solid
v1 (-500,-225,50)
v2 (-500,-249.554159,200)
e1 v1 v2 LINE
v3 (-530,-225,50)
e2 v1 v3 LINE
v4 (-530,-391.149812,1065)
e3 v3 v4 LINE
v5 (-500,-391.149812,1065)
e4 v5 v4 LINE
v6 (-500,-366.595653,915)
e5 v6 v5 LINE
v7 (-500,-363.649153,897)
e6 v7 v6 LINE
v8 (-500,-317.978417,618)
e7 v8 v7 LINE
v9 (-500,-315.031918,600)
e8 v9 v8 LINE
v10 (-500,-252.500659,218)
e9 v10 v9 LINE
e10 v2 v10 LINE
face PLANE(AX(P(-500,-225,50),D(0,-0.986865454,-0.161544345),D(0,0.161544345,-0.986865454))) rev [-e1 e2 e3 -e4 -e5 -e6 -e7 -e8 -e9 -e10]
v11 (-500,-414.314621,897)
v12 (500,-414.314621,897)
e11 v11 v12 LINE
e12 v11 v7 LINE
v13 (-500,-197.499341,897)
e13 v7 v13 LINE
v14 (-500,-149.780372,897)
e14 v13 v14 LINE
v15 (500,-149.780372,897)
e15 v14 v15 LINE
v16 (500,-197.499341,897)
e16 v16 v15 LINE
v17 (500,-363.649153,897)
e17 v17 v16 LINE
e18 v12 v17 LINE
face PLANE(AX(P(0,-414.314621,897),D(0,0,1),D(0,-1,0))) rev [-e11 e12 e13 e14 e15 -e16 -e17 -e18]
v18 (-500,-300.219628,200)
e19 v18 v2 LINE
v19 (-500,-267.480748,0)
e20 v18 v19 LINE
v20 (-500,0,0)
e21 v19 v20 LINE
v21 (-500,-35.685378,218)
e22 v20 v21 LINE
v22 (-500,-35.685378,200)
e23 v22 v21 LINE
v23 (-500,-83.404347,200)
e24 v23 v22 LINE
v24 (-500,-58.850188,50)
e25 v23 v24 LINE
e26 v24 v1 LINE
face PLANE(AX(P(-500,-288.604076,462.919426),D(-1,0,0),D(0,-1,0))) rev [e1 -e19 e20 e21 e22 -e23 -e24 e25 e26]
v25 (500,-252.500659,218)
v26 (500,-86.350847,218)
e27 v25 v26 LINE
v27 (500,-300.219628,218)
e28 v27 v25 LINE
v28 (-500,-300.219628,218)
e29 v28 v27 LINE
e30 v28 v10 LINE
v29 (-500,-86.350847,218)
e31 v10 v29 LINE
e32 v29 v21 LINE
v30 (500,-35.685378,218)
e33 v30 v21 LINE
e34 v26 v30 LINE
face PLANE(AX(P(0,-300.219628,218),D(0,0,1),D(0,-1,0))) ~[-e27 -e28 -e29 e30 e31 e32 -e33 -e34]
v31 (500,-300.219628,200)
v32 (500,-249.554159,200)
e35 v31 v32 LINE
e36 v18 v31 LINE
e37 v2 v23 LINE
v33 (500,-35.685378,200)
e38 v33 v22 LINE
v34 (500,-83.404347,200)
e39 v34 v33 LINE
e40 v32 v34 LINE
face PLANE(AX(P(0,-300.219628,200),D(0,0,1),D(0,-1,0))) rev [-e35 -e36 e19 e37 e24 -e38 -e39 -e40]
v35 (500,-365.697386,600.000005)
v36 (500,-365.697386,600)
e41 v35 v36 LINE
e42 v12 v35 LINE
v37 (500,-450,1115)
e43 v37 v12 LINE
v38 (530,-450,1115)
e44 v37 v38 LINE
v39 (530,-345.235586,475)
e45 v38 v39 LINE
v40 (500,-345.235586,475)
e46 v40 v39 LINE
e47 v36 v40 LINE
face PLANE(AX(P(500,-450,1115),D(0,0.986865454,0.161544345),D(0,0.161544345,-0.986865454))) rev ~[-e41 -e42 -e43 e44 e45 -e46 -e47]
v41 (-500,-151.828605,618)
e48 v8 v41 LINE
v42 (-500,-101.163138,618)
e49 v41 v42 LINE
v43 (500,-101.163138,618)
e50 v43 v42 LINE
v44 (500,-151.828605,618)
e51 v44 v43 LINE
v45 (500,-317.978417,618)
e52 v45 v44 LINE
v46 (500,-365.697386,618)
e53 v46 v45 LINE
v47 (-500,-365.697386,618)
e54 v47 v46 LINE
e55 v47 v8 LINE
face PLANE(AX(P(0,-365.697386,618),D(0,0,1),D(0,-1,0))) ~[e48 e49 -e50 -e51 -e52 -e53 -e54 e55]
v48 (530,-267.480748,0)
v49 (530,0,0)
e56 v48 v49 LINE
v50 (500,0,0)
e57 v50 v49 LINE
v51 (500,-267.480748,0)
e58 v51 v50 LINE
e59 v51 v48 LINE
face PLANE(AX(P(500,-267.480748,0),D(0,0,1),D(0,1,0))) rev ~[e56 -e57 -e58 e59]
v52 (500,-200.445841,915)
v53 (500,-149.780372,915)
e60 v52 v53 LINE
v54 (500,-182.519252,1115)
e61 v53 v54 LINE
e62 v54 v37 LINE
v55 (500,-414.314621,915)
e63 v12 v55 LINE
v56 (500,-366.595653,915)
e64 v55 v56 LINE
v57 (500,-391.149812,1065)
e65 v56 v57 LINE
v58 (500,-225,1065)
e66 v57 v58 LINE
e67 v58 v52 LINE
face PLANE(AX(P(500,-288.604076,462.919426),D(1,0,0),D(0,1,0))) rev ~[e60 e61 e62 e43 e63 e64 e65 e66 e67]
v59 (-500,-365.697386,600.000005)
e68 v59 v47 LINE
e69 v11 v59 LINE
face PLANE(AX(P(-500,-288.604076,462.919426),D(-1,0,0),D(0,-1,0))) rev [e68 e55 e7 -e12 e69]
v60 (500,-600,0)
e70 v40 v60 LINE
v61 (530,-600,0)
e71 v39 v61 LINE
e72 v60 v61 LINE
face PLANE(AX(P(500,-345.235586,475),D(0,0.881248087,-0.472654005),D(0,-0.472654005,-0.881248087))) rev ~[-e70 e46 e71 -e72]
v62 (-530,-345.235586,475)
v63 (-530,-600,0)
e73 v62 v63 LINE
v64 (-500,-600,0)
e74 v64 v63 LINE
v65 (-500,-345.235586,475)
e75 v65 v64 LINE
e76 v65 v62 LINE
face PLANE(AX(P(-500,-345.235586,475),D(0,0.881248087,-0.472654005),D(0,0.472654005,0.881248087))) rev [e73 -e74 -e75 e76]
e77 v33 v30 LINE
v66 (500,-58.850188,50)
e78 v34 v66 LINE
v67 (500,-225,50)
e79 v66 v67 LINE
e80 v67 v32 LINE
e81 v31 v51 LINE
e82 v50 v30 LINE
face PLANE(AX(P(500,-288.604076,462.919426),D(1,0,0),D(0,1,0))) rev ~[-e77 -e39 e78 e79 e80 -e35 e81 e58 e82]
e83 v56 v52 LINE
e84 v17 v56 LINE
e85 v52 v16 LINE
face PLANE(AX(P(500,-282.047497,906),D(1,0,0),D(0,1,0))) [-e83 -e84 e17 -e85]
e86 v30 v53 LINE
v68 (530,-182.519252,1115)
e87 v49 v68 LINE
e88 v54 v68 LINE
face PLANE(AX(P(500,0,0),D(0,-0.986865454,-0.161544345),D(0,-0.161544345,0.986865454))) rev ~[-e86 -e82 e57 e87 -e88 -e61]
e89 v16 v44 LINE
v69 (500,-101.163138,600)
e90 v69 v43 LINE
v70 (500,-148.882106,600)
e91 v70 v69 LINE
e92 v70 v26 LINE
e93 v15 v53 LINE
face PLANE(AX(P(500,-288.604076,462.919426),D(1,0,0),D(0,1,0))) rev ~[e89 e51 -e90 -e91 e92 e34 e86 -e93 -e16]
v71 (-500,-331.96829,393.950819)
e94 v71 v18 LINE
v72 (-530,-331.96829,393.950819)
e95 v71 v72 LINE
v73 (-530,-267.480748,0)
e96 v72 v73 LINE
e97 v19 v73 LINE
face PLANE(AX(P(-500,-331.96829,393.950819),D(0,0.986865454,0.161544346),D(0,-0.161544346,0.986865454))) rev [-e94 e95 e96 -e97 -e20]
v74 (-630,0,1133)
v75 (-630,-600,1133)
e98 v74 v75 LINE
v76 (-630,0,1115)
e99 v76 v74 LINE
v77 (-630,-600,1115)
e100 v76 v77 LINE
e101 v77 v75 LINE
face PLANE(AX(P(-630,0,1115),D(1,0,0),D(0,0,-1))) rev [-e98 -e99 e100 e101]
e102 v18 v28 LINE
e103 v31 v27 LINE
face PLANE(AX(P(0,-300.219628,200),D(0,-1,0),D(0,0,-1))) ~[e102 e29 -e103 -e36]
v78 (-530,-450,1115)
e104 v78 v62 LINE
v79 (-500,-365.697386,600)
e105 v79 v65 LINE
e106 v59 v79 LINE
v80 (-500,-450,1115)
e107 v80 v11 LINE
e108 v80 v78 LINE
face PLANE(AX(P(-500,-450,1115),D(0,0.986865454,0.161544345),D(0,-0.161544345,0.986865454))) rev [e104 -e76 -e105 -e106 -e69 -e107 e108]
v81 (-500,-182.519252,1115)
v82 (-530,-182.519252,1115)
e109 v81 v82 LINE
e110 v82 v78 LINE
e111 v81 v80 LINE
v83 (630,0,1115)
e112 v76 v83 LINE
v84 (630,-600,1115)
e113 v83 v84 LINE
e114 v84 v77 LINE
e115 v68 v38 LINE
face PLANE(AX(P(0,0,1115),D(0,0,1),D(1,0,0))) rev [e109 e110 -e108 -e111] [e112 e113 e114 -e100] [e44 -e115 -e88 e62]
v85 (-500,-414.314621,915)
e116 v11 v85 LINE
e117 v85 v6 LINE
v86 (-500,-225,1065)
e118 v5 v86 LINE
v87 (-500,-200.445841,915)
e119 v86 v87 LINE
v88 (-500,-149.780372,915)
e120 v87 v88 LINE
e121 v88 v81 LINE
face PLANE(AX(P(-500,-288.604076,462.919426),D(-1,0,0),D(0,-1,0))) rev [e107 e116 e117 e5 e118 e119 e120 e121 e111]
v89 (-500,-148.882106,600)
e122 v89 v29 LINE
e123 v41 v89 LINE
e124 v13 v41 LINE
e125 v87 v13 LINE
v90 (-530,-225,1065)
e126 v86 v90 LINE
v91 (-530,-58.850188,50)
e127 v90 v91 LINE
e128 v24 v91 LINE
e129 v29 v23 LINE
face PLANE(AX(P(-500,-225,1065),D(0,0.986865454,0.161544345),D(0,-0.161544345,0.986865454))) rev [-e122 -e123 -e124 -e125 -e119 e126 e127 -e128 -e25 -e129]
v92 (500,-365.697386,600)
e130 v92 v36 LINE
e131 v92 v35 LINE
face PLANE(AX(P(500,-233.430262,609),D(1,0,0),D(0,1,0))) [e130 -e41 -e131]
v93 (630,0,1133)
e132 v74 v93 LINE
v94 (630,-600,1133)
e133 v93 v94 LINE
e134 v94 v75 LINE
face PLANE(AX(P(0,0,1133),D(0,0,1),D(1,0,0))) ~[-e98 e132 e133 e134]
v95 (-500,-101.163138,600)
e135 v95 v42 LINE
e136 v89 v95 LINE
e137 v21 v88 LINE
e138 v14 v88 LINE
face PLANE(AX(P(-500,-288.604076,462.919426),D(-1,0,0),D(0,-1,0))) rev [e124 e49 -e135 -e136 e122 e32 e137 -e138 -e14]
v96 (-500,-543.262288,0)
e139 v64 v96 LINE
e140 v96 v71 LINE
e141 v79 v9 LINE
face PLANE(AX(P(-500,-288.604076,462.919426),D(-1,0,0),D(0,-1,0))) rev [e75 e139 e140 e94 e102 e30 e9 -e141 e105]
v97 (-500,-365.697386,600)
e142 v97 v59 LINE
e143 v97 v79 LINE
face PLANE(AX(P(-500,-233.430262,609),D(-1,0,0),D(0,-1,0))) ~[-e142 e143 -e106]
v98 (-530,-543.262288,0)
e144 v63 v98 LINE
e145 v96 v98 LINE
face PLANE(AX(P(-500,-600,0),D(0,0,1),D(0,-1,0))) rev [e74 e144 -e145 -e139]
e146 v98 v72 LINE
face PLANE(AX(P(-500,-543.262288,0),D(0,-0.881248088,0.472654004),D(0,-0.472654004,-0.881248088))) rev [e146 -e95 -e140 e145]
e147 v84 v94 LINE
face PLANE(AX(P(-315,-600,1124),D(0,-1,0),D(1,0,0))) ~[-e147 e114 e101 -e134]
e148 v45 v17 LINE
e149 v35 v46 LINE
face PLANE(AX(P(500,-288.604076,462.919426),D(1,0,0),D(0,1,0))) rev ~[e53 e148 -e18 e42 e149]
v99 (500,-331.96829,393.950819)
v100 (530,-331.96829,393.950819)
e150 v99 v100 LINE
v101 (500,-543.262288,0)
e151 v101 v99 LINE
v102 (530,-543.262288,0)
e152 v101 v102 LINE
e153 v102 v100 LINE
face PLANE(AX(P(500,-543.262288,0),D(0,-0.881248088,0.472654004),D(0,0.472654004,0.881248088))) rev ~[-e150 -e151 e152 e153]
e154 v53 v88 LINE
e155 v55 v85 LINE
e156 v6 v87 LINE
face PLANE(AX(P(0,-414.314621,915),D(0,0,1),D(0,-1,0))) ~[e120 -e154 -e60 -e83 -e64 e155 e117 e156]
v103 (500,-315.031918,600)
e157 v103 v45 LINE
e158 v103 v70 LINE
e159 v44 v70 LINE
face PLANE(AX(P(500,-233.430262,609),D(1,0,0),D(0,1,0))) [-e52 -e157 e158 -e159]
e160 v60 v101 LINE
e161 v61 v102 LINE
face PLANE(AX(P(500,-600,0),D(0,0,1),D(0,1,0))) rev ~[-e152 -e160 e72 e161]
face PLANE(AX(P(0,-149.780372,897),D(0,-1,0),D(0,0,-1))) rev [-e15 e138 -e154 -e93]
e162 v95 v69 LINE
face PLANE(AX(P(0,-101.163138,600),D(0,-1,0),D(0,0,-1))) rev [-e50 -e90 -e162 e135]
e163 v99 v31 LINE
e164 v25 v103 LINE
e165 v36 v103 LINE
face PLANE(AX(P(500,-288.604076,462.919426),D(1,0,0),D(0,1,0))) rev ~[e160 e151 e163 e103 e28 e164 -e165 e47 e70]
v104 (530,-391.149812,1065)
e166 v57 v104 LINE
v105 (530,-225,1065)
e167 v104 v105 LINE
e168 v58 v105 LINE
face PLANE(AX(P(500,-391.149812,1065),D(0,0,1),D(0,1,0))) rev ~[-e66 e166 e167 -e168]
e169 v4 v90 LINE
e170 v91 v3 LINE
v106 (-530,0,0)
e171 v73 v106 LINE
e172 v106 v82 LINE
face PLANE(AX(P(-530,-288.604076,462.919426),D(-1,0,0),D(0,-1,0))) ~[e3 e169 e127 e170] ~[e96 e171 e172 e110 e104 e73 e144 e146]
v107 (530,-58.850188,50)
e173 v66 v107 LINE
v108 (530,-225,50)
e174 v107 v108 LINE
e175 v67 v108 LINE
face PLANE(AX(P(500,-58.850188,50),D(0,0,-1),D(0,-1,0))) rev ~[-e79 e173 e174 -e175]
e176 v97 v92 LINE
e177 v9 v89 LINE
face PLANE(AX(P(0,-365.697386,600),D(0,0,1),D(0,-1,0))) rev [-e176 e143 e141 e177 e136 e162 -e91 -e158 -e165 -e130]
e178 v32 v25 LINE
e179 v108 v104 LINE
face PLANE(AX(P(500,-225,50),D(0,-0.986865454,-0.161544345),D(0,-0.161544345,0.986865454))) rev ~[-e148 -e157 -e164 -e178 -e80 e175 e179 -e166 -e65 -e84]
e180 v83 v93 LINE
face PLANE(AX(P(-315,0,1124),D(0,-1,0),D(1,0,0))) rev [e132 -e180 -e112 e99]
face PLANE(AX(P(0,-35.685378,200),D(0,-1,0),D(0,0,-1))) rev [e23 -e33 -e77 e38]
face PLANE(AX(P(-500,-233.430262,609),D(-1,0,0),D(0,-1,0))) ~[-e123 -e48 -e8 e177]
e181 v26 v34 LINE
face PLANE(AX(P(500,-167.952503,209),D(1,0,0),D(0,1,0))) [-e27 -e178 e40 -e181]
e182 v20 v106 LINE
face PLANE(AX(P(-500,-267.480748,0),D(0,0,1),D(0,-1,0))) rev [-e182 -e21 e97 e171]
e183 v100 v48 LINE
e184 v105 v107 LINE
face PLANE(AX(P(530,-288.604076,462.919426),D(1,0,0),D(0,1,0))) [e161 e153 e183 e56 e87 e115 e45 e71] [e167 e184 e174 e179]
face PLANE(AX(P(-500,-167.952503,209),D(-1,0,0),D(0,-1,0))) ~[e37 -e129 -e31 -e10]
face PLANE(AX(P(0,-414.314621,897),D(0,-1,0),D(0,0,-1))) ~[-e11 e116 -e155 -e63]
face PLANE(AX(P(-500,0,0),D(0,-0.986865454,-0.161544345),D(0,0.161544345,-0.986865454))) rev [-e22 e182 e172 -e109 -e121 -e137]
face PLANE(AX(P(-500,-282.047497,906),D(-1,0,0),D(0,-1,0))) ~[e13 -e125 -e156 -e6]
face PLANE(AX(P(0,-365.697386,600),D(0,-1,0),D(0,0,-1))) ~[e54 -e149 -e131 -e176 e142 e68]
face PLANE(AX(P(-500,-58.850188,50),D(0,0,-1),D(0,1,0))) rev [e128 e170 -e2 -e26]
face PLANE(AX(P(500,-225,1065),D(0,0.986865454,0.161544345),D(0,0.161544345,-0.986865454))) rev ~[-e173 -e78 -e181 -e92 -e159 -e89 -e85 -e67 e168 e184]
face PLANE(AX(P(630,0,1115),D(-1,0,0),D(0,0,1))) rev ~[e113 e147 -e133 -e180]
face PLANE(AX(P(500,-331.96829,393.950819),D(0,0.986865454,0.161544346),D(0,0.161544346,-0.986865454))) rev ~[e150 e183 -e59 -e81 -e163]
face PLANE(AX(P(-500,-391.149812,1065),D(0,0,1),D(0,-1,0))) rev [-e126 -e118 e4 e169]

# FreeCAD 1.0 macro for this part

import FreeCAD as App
import Part
import Sketcher

V = App.Vector
Q = App.Units.Quantity

doc = App.newDocument("Part")
params = doc.addObject("Spreadsheet::Sheet", "Params")
for row, (alias, value) in enumerate([
    ("pad1_length", "30 mm"),
    ("sketch2_width", "630 mm"),
    ("sketch2_height", "18 mm"),
    ("pad2_length", "600 mm"),
    ("sketch3_height", "18 mm"),
    ("pad3_length", "500 mm"),
], start=1):
    params.set(f"A{row}", alias)
    params.set(f"B{row}", "=" + value)
    params.setAlias(f"B{row}", alias)

body = doc.addObject("PartDesign::Body", "Body")

# Sketch on YZ plane
sketch1 = body.newObject("Sketcher::SketchObject", "Sketch")
sketch1.AttachmentSupport = (doc.getObject("YZ_Plane"), [""])
sketch1.MapMode = "FlatFace"
sketch1.AttachmentOffset = App.Placement(V(0, 0, 500), App.Rotation())
sketch1.addGeometry(Part.LineSegment(V(-543.262288, 0, 0), V(-331.96829, 393.950819, 0)), False)
sketch1.addGeometry(Part.LineSegment(V(-331.96829, 393.950819, 0), V(-267.480748, 0, 0)), False)
sketch1.addGeometry(Part.LineSegment(V(-267.480748, 0, 0), V(0, 0, 0)), False)
sketch1.addGeometry(Part.LineSegment(V(0, 0, 0), V(-182.519252, 1115, 0)), False)
sketch1.addGeometry(Part.LineSegment(V(-182.519252, 1115, 0), V(-450, 1115, 0)), False)
sketch1.addGeometry(Part.LineSegment(V(-450, 1115, 0), V(-345.235586, 475, 0)), False)
sketch1.addGeometry(Part.LineSegment(V(-345.235586, 475, 0), V(-600, 0, 0)), False)
sketch1.addGeometry(Part.LineSegment(V(-600, 0, 0), V(-543.262288, 0, 0)), False)
sketch1.addGeometry(Part.LineSegment(V(-58.850188, 50, 0), V(-225, 50, 0)), False)
sketch1.addGeometry(Part.LineSegment(V(-225, 50, 0), V(-391.149812, 1065, 0)), False)
sketch1.addGeometry(Part.LineSegment(V(-391.149812, 1065, 0), V(-225, 1065, 0)), False)
sketch1.addGeometry(Part.LineSegment(V(-225, 1065, 0), V(-58.850188, 50, 0)), False)
sketch1.addConstraint(Sketcher.Constraint("Coincident", 0, 2, 1, 1))
sketch1.addConstraint(Sketcher.Constraint("Coincident", 1, 2, 2, 1))
sketch1.addConstraint(Sketcher.Constraint("Coincident", 2, 2, 3, 1))
sketch1.addConstraint(Sketcher.Constraint("Coincident", 3, 2, 4, 1))
sketch1.addConstraint(Sketcher.Constraint("Coincident", 4, 2, 5, 1))
sketch1.addConstraint(Sketcher.Constraint("Coincident", 5, 2, 6, 1))
sketch1.addConstraint(Sketcher.Constraint("Coincident", 6, 2, 7, 1))
sketch1.addConstraint(Sketcher.Constraint("Coincident", 7, 2, 0, 1))
sketch1.addConstraint(Sketcher.Constraint("Coincident", 8, 2, 9, 1))
sketch1.addConstraint(Sketcher.Constraint("Coincident", 9, 2, 10, 1))
sketch1.addConstraint(Sketcher.Constraint("Coincident", 10, 2, 11, 1))
sketch1.addConstraint(Sketcher.Constraint("Coincident", 11, 2, 8, 1))
sketch1.addConstraint(Sketcher.Constraint("Horizontal", 2))
sketch1.addConstraint(Sketcher.Constraint("Horizontal", 4))
sketch1.addConstraint(Sketcher.Constraint("Horizontal", 7))
sketch1.addConstraint(Sketcher.Constraint("Horizontal", 8))
sketch1.addConstraint(Sketcher.Constraint("Horizontal", 10))
sketch1.addConstraint(Sketcher.Constraint("Coincident", 2, 2, -1, 1))
sketch1.addConstraint(Sketcher.Constraint("PointOnObject", 6, 2, -1))
sketch1.addConstraint(Sketcher.Constraint("Parallel", 1, 3))
sketch1.addConstraint(Sketcher.Constraint("Parallel", 3, 5))
sketch1.addConstraint(Sketcher.Constraint("Parallel", 0, 6))
sketch1.addConstraint(Sketcher.Constraint("Parallel", 5, 9))
sketch1.addConstraint(Sketcher.Constraint("Parallel", 9, 11))
sketch1.addConstraint(Sketcher.Constraint("Vertical", 8, 2, 10, 2))
sketch1.addConstraint(Sketcher.Constraint("Equal", 2, 4))
sketch1.addConstraint(Sketcher.Constraint("DistanceY", -1, 1, 3, 2, Q("1115 mm")))
sketch1.addConstraint(Sketcher.Constraint("DistanceX", 4, 2, -1, 1, Q("450 mm")))
sketch1.addConstraint(Sketcher.Constraint("DistanceY", -1, 1, 5, 2, Q("475 mm")))
sketch1.addConstraint(Sketcher.Constraint("DistanceX", 6, 2, -1, 1, Q("600 mm")))
sketch1.addConstraint(Sketcher.Constraint("DistanceX", 8, 2, -1, 1, Q("225 mm")))
sketch1.addConstraint(Sketcher.Constraint("DistanceY", -1, 1, 8, 2, Q("50 mm")))
sketch1.addConstraint(Sketcher.Constraint("DistanceY", -1, 1, 9, 2, Q("1065 mm")))
sketch1.addConstraint(Sketcher.Constraint("Distance", 9, Q("1028.508999 mm")))
sketch1.addConstraint(Sketcher.Constraint("DistanceX", 7, 1, 7, 2, Q("56.737712 mm")))
pad1 = body.newObject("PartDesign::Pad", "Pad")
pad1.Profile = sketch1
pad1.setExpression("Length", "Params.pad1_length")

# Sketch on XZ plane
sketch2 = body.newObject("Sketcher::SketchObject", "Sketch001")
sketch2.AttachmentSupport = (doc.getObject("XZ_Plane"), [""])
sketch2.MapMode = "FlatFace"
sketch2.addGeometry(Part.LineSegment(V(0, 1133, 0), V(0, 1115, 0)), False)
sketch2.addGeometry(Part.LineSegment(V(0, 1115, 0), V(630, 1115, 0)), False)
sketch2.addGeometry(Part.LineSegment(V(630, 1115, 0), V(630, 1133, 0)), False)
sketch2.addGeometry(Part.LineSegment(V(630, 1133, 0), V(0, 1133, 0)), False)
sketch2.addConstraint(Sketcher.Constraint("Coincident", 0, 2, 1, 1))
sketch2.addConstraint(Sketcher.Constraint("Coincident", 1, 2, 2, 1))
sketch2.addConstraint(Sketcher.Constraint("Coincident", 2, 2, 3, 1))
sketch2.addConstraint(Sketcher.Constraint("Coincident", 3, 2, 0, 1))
sketch2.addConstraint(Sketcher.Constraint("Vertical", 0))
sketch2.addConstraint(Sketcher.Constraint("Horizontal", 1))
sketch2.addConstraint(Sketcher.Constraint("Vertical", 2))
sketch2.addConstraint(Sketcher.Constraint("Horizontal", 3))
sketch2.addConstraint(Sketcher.Constraint("PointOnObject", 0, 2, -2))
sketch2.addConstraint(Sketcher.Constraint("DistanceX", 1, 1, 1, 2, Q("630 mm")))
sketch2.addConstraint(Sketcher.Constraint("DistanceY", 0, 2, 0, 1, Q("18 mm")))
sketch2.addConstraint(Sketcher.Constraint("DistanceY", -1, 1, 0, 2, Q("1115 mm")))
sketch2.setExpression("Constraints[9]", "Params.sketch2_width")
sketch2.setExpression("Constraints[10]", "Params.sketch2_height")
pad2 = body.newObject("PartDesign::Pad", "Pad001")
pad2.Profile = sketch2
pad2.setExpression("Length", "Params.pad2_length")

# Sketch on YZ plane
sketch3 = body.newObject("Sketcher::SketchObject", "Sketch002")
sketch3.AttachmentSupport = (doc.getObject("YZ_Plane"), [""])
sketch3.MapMode = "FlatFace"
sketch3.addGeometry(Part.LineSegment(V(-414.314621, 915, 0), V(-414.314621, 897, 0)), False)
sketch3.addGeometry(Part.LineSegment(V(-414.314621, 897, 0), V(-149.780372, 897, 0)), False)
sketch3.addGeometry(Part.LineSegment(V(-149.780372, 897, 0), V(-149.780372, 915, 0)), False)
sketch3.addGeometry(Part.LineSegment(V(-149.780372, 915, 0), V(-414.314621, 915, 0)), False)
sketch3.addGeometry(Part.LineSegment(V(-365.697386, 618, 0), V(-365.697386, 600, 0)), False)
sketch3.addGeometry(Part.LineSegment(V(-365.697386, 600, 0), V(-101.163138, 600, 0)), False)
sketch3.addGeometry(Part.LineSegment(V(-101.163138, 600, 0), V(-101.163138, 618, 0)), False)
sketch3.addGeometry(Part.LineSegment(V(-101.163138, 618, 0), V(-365.697386, 618, 0)), False)
sketch3.addGeometry(Part.LineSegment(V(-300.219628, 218, 0), V(-300.219628, 200, 0)), False)
sketch3.addGeometry(Part.LineSegment(V(-300.219628, 200, 0), V(-35.685378, 200, 0)), False)
sketch3.addGeometry(Part.LineSegment(V(-35.685378, 200, 0), V(-35.685378, 218, 0)), False)
sketch3.addGeometry(Part.LineSegment(V(-35.685378, 218, 0), V(-300.219628, 218, 0)), False)
sketch3.addConstraint(Sketcher.Constraint("Coincident", 0, 2, 1, 1))
sketch3.addConstraint(Sketcher.Constraint("Coincident", 1, 2, 2, 1))
sketch3.addConstraint(Sketcher.Constraint("Coincident", 2, 2, 3, 1))
sketch3.addConstraint(Sketcher.Constraint("Coincident", 3, 2, 0, 1))
sketch3.addConstraint(Sketcher.Constraint("Coincident", 4, 2, 5, 1))
sketch3.addConstraint(Sketcher.Constraint("Coincident", 5, 2, 6, 1))
sketch3.addConstraint(Sketcher.Constraint("Coincident", 6, 2, 7, 1))
sketch3.addConstraint(Sketcher.Constraint("Coincident", 7, 2, 4, 1))
sketch3.addConstraint(Sketcher.Constraint("Coincident", 8, 2, 9, 1))
sketch3.addConstraint(Sketcher.Constraint("Coincident", 9, 2, 10, 1))
sketch3.addConstraint(Sketcher.Constraint("Coincident", 10, 2, 11, 1))
sketch3.addConstraint(Sketcher.Constraint("Coincident", 11, 2, 8, 1))
sketch3.addConstraint(Sketcher.Constraint("Vertical", 0))
sketch3.addConstraint(Sketcher.Constraint("Horizontal", 1))
sketch3.addConstraint(Sketcher.Constraint("Vertical", 2))
sketch3.addConstraint(Sketcher.Constraint("Horizontal", 3))
sketch3.addConstraint(Sketcher.Constraint("Vertical", 4))
sketch3.addConstraint(Sketcher.Constraint("Horizontal", 5))
sketch3.addConstraint(Sketcher.Constraint("Vertical", 6))
sketch3.addConstraint(Sketcher.Constraint("Horizontal", 7))
sketch3.addConstraint(Sketcher.Constraint("Vertical", 8))
sketch3.addConstraint(Sketcher.Constraint("Horizontal", 9))
sketch3.addConstraint(Sketcher.Constraint("Vertical", 10))
sketch3.addConstraint(Sketcher.Constraint("Horizontal", 11))
sketch3.addConstraint(Sketcher.Constraint("Equal", 3, 5))
sketch3.addConstraint(Sketcher.Constraint("Equal", 7, 9))
sketch3.addConstraint(Sketcher.Constraint("Equal", 2, 4))
sketch3.addConstraint(Sketcher.Constraint("Equal", 6, 8))
sketch3.addConstraint(Sketcher.Constraint("DistanceY", 0, 2, 0, 1, Q("18 mm")))
sketch3.addConstraint(Sketcher.Constraint("DistanceY", -1, 1, 0, 2, Q("897 mm")))
sketch3.addConstraint(Sketcher.Constraint("DistanceY", -1, 1, 4, 2, Q("600 mm")))
sketch3.addConstraint(Sketcher.Constraint("DistanceY", -1, 1, 8, 2, Q("200 mm")))
sketch3.addConstraint(Sketcher.Constraint("DistanceX", 1, 1, 1, 2, Q("264.534249 mm")))
sketch3.addConstraint(Sketcher.Constraint("DistanceX", 0, 2, -1, 1, Q("414.314621 mm")))
sketch3.addConstraint(Sketcher.Constraint("DistanceX", 9, 2, -1, 1, Q("35.685378 mm")))
sketch3.addConstraint(Sketcher.Constraint("DistanceX", 4, 2, 8, 2, Q("65.477759 mm")))
sketch3.setExpression("Constraints[28]", "Params.sketch3_height")
pad3 = body.newObject("PartDesign::Pad", "Pad002")
pad3.Profile = sketch3
pad3.setExpression("Length", "Params.pad3_length")
body2 = doc.addObject("PartDesign::Body", "Body001")
doc.recompute()

body2.BaseFeature = body
doc.recompute()

mirroring = doc.addObject("Part::Mirroring", "Mirroring")
mirroring.Source = body
mirroring.Base = V(0, 0, 0)
mirroring.Normal = V(1, 0, 0)
body3 = doc.addObject("PartDesign::Body", "Body002")
body3.BaseFeature = mirroring
boolean = body2.newObject("PartDesign::Boolean", "Boolean")
boolean.Type = "Fuse"
boolean.addObjects([body3])
doc.recompute()

doc.recompute()
